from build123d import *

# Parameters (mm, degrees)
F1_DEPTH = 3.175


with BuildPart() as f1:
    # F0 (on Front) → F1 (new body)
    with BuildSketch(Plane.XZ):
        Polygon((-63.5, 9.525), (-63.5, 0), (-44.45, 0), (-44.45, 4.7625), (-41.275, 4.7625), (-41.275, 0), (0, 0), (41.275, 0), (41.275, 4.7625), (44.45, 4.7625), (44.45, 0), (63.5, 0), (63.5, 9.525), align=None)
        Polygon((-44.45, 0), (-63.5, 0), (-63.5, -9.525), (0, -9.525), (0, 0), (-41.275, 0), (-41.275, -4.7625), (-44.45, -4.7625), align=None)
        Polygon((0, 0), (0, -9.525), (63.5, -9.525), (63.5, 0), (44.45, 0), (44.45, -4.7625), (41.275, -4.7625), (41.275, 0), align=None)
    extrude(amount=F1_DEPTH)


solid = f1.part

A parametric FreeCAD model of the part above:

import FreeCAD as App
import Part
import Sketcher
Q = App.Units.Quantity

doc = App.newDocument("Part")
body = doc.addObject("PartDesign::Body", "Body")

sketch1 = body.newObject("Sketcher::SketchObject", "Sketch")
sketch1.AttachmentSupport = (doc.getObject("XZ_Plane"), [""])
sketch1.MapMode = "FlatFace"
sketch1.addGeometry(Part.LineSegment(App.Vector(-63.5, 9.5, 0), App.Vector(-63.5, -9.5, 0)), False)
sketch1.addGeometry(Part.LineSegment(App.Vector(-63.5, -9.5, 0), App.Vector(63.5, -9.5, 0)), False)
sketch1.addGeometry(Part.LineSegment(App.Vector(63.5, -9.5, 0), App.Vector(63.5, 9.5, 0)), False)
sketch1.addGeometry(Part.LineSegment(App.Vector(63.5, 9.5, 0), App.Vector(-63.5, 9.5, 0)), False)
sketch1.addGeometry(Part.LineSegment(App.Vector(41.3, 4.8, 0), App.Vector(44.5, 4.8, 0)), False)
sketch1.addGeometry(Part.LineSegment(App.Vector(44.5, 4.8, 0), App.Vector(44.5, -4.8, 0)), False)
sketch1.addGeometry(Part.LineSegment(App.Vector(44.5, -4.8, 0), App.Vector(41.3, -4.8, 0)), False)
sketch1.addGeometry(Part.LineSegment(App.Vector(41.3, -4.8, 0), App.Vector(41.3, 4.8, 0)), False)
sketch1.addGeometry(Part.LineSegment(App.Vector(-44.5, 4.8, 0), App.Vector(-41.3, 4.8, 0)), False)
sketch1.addGeometry(Part.LineSegment(App.Vector(-41.3, 4.8, 0), App.Vector(-41.3, -4.8, 0)), False)
sketch1.addGeometry(Part.LineSegment(App.Vector(-41.3, -4.8, 0), App.Vector(-44.5, -4.8, 0)), False)
sketch1.addGeometry(Part.LineSegment(App.Vector(-44.5, -4.8, 0), App.Vector(-44.5, 4.8, 0)), False)
sketch1.addConstraint(Sketcher.Constraint("Coincident", 0, 2, 1, 1))
sketch1.addConstraint(Sketcher.Constraint("Coincident", 1, 2, 2, 1))
sketch1.addConstraint(Sketcher.Constraint("Coincident", 2, 2, 3, 1))
sketch1.addConstraint(Sketcher.Constraint("Coincident", 3, 2, 0, 1))
sketch1.addConstraint(Sketcher.Constraint("Coincident", 4, 2, 5, 1))
sketch1.addConstraint(Sketcher.Constraint("Coincident", 5, 2, 6, 1))
sketch1.addConstraint(Sketcher.Constraint("Coincident", 6, 2, 7, 1))
sketch1.addConstraint(Sketcher.Constraint("Coincident", 7, 2, 4, 1))
sketch1.addConstraint(Sketcher.Constraint("Coincident", 8, 2, 9, 1))
sketch1.addConstraint(Sketcher.Constraint("Coincident", 9, 2, 10, 1))
sketch1.addConstraint(Sketcher.Constraint("Coincident", 10, 2, 11, 1))
sketch1.addConstraint(Sketcher.Constraint("Coincident", 11, 2, 8, 1))
sketch1.addConstraint(Sketcher.Constraint("Vertical", 0))
sketch1.addConstraint(Sketcher.Constraint("Horizontal", 1))
sketch1.addConstraint(Sketcher.Constraint("Vertical", 2))
sketch1.addConstraint(Sketcher.Constraint("Horizontal", 3))
sketch1.addConstraint(Sketcher.Constraint("Horizontal", 4))
sketch1.addConstraint(Sketcher.Constraint("Vertical", 5))
sketch1.addConstraint(Sketcher.Constraint("Horizontal", 6))
sketch1.addConstraint(Sketcher.Constraint("Vertical", 7))
sketch1.addConstraint(Sketcher.Constraint("Horizontal", 8))
sketch1.addConstraint(Sketcher.Constraint("Vertical", 9))
sketch1.addConstraint(Sketcher.Constraint("Horizontal", 10))
sketch1.addConstraint(Sketcher.Constraint("Vertical", 11))
sketch1.addConstraint(Sketcher.Constraint("Symmetric", 0, 2, 2, 2, -1, 1))
sketch1.addConstraint(Sketcher.Constraint("Symmetric", 6, 2, 8, 2, -1, 1))
sketch1.addConstraint(Sketcher.Constraint("Symmetric", 4, 2, 10, 2, -1, 1))
sketch1.addConstraint(Sketcher.Constraint("Horizontal", 7, 2, 8, 2))
sketch1.addConstraint(Sketcher.Constraint("DistanceX", 1, 1, 1, 2, Q("5 in")))
sketch1.addConstraint(Sketcher.Constraint("DistanceY", 0, 2, 0, 1, Q("0.75 in")))
sketch1.addConstraint(Sketcher.Constraint("DistanceX", 4, 1, 4, 2, Q("0.125 in")))
sketch1.addConstraint(Sketcher.Constraint("DistanceY", 5, 2, 5, 1, Q("0.375 in")))
sketch1.addConstraint(Sketcher.Constraint("DistanceX", -1, 1, 4, 2, Q("1.75 in")))
pad1 = body.newObject("PartDesign::Pad", "Pad")
pad1.Profile = sketch1
pad1.Length = Q("0.125 in")

doc.recompute()
